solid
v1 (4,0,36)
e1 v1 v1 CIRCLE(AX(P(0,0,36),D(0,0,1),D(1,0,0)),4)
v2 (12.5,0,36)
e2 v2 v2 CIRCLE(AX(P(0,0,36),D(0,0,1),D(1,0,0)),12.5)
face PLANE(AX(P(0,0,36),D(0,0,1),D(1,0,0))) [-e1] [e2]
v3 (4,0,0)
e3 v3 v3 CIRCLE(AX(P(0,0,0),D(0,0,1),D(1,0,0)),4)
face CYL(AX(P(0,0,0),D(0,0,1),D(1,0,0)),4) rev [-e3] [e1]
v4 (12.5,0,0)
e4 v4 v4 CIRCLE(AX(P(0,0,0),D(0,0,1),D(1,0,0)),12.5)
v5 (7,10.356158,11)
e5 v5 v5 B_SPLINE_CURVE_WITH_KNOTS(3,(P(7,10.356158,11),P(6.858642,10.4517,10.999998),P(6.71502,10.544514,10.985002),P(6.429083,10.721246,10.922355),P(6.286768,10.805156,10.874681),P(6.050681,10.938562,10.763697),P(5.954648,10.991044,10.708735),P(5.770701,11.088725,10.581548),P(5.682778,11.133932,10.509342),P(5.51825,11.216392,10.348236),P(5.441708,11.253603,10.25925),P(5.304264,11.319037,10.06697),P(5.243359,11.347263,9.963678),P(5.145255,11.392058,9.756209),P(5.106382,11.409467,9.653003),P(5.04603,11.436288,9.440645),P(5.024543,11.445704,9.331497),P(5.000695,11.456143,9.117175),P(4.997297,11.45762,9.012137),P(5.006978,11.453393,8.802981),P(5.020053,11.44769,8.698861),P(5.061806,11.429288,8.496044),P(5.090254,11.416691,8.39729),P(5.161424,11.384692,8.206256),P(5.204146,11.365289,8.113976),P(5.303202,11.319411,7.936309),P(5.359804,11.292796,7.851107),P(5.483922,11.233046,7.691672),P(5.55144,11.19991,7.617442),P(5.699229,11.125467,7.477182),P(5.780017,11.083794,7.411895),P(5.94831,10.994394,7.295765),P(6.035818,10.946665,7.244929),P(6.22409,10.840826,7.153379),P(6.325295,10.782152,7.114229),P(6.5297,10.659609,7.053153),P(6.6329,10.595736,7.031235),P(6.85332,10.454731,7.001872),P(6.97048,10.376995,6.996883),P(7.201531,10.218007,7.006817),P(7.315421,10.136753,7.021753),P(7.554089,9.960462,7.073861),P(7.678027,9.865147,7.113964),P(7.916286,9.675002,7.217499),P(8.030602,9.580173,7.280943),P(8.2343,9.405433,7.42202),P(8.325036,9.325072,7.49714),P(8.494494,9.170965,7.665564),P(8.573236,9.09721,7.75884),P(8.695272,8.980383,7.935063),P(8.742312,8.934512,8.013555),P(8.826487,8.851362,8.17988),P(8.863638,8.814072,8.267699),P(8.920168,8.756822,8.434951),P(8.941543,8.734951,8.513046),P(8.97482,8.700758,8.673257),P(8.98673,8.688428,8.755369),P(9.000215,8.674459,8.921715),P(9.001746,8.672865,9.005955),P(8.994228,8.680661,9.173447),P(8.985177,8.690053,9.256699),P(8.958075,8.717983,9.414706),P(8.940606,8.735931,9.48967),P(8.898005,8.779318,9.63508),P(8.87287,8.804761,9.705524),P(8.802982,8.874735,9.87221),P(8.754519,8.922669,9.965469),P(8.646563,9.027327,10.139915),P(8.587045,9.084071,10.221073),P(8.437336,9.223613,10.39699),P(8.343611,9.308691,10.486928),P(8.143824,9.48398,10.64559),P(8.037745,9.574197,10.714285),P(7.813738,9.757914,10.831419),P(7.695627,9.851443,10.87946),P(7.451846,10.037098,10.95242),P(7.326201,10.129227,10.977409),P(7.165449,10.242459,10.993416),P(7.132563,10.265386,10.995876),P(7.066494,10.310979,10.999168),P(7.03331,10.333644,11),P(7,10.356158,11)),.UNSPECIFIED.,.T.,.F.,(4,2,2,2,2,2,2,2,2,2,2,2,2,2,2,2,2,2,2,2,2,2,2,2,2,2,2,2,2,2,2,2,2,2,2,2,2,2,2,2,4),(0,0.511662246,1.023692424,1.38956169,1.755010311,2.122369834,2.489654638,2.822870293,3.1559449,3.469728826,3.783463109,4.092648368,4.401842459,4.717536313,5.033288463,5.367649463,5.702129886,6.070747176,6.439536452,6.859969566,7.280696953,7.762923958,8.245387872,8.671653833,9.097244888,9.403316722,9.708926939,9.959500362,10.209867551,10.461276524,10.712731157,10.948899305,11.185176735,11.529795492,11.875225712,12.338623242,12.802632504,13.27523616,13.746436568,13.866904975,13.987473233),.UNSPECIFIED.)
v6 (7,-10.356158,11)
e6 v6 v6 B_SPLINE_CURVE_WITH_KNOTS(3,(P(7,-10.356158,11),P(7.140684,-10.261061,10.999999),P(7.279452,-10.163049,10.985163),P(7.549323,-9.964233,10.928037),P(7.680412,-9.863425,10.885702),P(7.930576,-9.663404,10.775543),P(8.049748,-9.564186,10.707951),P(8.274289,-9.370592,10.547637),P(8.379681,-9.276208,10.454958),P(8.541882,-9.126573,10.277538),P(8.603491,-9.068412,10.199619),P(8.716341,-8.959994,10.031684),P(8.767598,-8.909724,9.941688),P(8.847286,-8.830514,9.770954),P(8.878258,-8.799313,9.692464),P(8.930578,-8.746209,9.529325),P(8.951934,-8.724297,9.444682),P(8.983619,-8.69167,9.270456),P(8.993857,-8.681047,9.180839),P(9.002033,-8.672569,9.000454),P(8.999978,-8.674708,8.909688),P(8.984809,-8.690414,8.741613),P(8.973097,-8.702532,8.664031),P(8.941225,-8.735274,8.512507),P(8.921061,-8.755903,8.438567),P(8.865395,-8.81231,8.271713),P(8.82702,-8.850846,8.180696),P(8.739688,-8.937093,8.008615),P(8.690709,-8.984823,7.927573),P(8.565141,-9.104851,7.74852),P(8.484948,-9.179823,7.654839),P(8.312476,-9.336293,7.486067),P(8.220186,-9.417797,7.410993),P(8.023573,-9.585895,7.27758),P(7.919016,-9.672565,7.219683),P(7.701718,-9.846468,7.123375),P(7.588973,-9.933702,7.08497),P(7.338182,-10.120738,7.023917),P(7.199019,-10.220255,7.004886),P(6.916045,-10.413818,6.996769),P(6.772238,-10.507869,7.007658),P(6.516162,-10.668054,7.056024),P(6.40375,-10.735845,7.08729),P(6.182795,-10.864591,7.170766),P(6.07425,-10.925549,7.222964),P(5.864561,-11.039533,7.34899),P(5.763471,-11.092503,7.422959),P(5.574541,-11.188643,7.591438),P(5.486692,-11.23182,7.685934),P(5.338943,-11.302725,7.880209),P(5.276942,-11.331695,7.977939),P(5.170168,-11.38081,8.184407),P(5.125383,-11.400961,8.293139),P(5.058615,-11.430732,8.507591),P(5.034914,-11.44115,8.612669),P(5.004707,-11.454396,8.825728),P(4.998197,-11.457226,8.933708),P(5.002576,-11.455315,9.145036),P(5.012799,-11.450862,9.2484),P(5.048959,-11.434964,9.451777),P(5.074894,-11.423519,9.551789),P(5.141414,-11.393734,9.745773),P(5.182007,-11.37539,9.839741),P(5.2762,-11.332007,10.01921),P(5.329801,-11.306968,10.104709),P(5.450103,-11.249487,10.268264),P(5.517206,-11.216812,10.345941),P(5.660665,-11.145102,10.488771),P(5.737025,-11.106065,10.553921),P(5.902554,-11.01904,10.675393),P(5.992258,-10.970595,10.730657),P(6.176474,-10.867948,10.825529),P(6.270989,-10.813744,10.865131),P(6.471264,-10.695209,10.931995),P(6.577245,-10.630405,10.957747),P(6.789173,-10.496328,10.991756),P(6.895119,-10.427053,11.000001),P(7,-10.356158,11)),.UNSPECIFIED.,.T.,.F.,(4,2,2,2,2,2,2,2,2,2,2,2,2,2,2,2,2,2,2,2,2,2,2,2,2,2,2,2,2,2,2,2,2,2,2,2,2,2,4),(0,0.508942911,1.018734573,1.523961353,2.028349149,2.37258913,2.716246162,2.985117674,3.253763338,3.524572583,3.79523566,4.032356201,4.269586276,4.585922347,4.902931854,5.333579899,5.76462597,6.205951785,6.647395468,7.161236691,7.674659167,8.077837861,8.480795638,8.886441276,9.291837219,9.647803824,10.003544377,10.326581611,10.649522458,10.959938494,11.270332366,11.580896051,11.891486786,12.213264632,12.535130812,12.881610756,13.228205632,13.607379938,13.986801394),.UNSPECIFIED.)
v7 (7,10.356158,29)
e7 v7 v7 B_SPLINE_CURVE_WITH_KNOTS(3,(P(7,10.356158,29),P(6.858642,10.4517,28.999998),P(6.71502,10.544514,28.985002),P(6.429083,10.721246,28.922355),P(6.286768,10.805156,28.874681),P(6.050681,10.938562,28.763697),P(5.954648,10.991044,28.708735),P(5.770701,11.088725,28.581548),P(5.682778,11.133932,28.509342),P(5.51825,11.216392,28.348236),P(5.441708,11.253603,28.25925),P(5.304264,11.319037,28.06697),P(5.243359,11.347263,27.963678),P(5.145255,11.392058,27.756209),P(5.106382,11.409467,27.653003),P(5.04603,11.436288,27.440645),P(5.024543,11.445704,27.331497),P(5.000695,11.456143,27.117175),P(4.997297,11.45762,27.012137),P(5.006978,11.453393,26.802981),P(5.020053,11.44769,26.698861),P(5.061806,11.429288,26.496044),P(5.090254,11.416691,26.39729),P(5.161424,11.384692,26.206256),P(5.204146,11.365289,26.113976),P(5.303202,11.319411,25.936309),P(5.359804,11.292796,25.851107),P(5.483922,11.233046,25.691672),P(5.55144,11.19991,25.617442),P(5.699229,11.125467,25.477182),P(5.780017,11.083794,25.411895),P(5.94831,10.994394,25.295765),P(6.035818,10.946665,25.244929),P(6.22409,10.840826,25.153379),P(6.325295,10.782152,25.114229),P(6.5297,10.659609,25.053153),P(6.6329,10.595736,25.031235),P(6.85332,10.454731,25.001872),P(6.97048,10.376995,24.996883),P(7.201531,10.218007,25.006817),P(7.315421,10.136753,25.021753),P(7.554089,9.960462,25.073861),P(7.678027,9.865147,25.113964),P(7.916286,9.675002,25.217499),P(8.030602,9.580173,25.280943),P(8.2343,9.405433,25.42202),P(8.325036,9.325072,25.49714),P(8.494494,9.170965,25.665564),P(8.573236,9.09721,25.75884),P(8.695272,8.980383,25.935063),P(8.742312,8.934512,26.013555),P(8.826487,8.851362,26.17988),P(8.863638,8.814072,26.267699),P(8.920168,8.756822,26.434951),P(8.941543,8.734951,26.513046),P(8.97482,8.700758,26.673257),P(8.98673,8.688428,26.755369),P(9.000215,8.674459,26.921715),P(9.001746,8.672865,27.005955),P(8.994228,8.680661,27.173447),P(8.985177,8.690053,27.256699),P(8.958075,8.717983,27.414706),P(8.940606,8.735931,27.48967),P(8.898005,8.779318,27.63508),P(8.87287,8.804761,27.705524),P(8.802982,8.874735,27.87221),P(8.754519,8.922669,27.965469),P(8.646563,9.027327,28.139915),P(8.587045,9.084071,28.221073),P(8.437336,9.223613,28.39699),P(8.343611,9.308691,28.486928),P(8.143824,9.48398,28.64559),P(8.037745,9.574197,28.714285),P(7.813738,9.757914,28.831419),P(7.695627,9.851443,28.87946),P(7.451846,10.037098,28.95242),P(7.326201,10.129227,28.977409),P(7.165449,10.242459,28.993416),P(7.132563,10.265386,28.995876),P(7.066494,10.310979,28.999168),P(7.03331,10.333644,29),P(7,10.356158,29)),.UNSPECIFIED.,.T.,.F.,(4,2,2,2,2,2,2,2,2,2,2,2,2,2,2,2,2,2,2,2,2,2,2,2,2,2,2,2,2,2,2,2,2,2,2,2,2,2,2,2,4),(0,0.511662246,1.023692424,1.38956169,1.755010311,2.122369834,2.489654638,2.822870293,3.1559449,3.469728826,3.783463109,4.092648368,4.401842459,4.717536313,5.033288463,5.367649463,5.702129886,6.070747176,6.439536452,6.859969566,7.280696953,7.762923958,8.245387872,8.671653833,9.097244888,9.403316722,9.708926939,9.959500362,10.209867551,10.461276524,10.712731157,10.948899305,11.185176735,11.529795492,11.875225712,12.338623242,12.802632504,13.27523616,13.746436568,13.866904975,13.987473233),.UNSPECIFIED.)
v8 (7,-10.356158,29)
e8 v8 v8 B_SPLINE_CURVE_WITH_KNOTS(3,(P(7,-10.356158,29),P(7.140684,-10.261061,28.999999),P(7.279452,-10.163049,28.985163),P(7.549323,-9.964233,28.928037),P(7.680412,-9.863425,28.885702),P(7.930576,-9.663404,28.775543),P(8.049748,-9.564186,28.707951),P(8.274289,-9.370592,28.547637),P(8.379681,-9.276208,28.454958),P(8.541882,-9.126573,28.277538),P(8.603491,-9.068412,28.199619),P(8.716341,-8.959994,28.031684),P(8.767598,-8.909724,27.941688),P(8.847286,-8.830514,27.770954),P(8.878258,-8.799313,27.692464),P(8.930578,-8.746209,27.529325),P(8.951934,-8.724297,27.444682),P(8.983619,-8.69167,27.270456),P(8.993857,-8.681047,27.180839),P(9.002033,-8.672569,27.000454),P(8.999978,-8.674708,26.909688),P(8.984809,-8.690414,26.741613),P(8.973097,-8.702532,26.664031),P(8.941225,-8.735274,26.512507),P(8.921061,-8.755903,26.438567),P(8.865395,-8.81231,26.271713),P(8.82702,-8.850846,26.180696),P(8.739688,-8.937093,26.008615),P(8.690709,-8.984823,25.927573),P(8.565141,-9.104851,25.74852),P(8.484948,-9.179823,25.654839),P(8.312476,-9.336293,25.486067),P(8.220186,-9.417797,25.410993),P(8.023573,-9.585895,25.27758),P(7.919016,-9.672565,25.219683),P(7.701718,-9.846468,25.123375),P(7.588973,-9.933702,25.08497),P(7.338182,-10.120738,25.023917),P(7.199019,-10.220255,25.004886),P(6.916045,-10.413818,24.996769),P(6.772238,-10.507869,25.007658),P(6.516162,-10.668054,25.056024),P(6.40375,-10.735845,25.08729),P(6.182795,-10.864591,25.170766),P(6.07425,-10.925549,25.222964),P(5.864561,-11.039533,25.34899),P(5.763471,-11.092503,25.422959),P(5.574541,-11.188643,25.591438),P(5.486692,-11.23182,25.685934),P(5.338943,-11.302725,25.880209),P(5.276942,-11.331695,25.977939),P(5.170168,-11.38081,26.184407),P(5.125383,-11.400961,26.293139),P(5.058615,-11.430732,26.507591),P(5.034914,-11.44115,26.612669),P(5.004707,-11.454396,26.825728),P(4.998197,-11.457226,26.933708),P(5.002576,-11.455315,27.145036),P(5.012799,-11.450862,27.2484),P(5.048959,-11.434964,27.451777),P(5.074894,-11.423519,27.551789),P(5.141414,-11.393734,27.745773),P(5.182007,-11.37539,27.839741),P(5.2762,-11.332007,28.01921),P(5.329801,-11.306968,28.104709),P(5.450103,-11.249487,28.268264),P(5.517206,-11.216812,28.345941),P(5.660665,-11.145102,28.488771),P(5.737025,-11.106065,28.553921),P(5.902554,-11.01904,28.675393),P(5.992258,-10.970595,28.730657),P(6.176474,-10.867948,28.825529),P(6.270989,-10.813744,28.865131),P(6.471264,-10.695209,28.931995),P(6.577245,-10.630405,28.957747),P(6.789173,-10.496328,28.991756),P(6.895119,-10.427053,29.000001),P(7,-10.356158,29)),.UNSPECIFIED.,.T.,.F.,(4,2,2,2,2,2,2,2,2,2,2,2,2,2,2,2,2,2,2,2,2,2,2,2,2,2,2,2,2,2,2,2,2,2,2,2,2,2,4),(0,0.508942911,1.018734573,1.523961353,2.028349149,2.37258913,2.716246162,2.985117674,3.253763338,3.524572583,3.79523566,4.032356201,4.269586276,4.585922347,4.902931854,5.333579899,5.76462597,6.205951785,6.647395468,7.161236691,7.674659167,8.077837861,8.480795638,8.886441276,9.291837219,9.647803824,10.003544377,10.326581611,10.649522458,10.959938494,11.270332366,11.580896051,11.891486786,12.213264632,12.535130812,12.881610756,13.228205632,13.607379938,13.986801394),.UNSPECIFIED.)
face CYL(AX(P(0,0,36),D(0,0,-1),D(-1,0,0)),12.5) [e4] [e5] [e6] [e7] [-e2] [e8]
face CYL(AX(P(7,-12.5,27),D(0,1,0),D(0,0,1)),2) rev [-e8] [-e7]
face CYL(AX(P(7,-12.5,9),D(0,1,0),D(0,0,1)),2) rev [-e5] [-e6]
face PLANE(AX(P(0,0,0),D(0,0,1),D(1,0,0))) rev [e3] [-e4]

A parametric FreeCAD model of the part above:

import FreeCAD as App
import Part
import Sketcher

V = App.Vector

doc = App.newDocument("Part")
body = doc.addObject("PartDesign::Body", "Body")

sketch1 = doc.addObject("Sketcher::SketchObject", "Sketch")
body.addObject(sketch1)
sketch1.AttachmentSupport = (doc.XY_Plane, [""])
sketch1.MapMode = "FlatFace"
sketch1.addGeometry(Part.Circle(V(0, 0, 0), V(0, 0, 1), 12), False)
sketch1.addConstraint([
    Sketcher.Constraint("Coincident", 0, 3, -1, 1),
    Sketcher.Constraint("Diameter", 0, 25.0),
])
pad1 = doc.addObject("PartDesign::Pad", "Pad")
body.addObject(pad1)
pad1.Profile = sketch1
pad1.Length = 36

sketch2 = doc.addObject("Sketcher::SketchObject", "Sketch001")
body.addObject(sketch2)
sketch2.AttachmentSupport = (doc.XY_Plane, [""])
sketch2.MapMode = "FlatFace"
sketch2.AttachmentOffset = App.Placement(V(0, 0, 36), App.Rotation())
sketch2.addGeometry(Part.Circle(V(0, 0, 0), V(0, 0, 1), 4), False)
sketch2.addConstraint([
    Sketcher.Constraint("Coincident", 0, 3, -1, 1),
    Sketcher.Constraint("Diameter", 0, 8.0),
])
pocket1 = doc.addObject("PartDesign::Pocket", "Pocket")
body.addObject(pocket1)
pocket1.Profile = sketch2
pocket1.Type = "ThroughAll"

sketch3 = doc.addObject("Sketcher::SketchObject", "Sketch002")
body.addObject(sketch3)
sketch3.AttachmentSupport = (doc.XZ_Plane, [""])
sketch3.MapMode = "FlatFace"
sketch3.addGeometry([
    Part.Circle(V(7, 9, 0), V(0, 0, 1), 2),
    Part.Circle(V(7, 27, 0), V(0, 0, 1), 2),
], False)
sketch3.addConstraint([
    Sketcher.Constraint("Equal", 0, 1),
    Sketcher.Constraint("Vertical", 0, 3, 1, 3),
    Sketcher.Constraint("Diameter", 0, 4.0),
    Sketcher.Constraint("DistanceX", -1, 1, 0, 3, 7.0),
    Sketcher.Constraint("DistanceY", -1, 1, 0, 3, 9.0),
    Sketcher.Constraint("DistanceY", -1, 1, 1, 3, 27.0),
])
pocket2 = doc.addObject("PartDesign::Pocket", "Pocket001")
body.addObject(pocket2)
pocket2.Profile = sketch3
pocket2.Type = "ThroughAll"
pocket2.Midplane = True

doc.recompute()
